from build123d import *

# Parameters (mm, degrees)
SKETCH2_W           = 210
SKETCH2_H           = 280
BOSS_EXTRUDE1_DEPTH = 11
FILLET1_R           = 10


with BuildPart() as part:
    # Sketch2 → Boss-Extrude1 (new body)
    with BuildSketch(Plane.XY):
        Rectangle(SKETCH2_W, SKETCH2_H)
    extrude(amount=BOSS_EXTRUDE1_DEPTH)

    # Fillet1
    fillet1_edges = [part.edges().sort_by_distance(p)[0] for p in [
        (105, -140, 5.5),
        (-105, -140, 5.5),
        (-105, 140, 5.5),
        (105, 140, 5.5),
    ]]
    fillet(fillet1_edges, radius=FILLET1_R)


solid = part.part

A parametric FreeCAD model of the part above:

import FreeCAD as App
import Part
import Sketcher
from FreeCAD import Vector
Q = App.Units.Quantity


def edges_at(feature, points):
    """Names of the edges that pass closest to the given points."""
    edges = feature.Shape.Edges
    near = lambda p: min(range(len(edges)), key=lambda i: edges[i].distToShape(Part.Vertex(*p))[0])
    return sorted({f"Edge{near(p) + 1}" for p in points})


def add_polygon(sketch, points):
    """Adds a closed chain of lines whose ends are joined by coincident constraints."""
    first, n = sketch.GeometryCount, len(points)
    for a, b in zip(points, points[1:] + points[:1]):
        sketch.addGeometry(Part.LineSegment(App.Vector(*a, 0), App.Vector(*b, 0)), False)
    for i in range(n):
        sketch.addConstraint(Sketcher.Constraint("Coincident", first + i, 2, first + (i + 1) % n, 1))

doc = App.newDocument("Part")
body = doc.addObject("PartDesign::Body", "Body")

sketch1 = body.newObject("Sketcher::SketchObject", "Sketch")
sketch1.AttachmentSupport = (doc.getObject("XY_Plane"), [""])
sketch1.MapMode = "FlatFace"
add_polygon(sketch1, [(-105, 140), (-105, -140), (105, -140), (105, 140)])
sketch1.addConstraint([
    Sketcher.Constraint("Vertical", 0),
    Sketcher.Constraint("Horizontal", 1),
    Sketcher.Constraint("Vertical", 2),
    Sketcher.Constraint("Horizontal", 3),
    Sketcher.Constraint("Symmetric", 0, 2, 2, 2, -1, 1),
    Sketcher.Constraint("DistanceX", 1, 1, 1, 2, Q("210 mm")),
    Sketcher.Constraint("DistanceY", 0, 2, 0, 1, Q("280 mm")),
])
pad1 = body.newObject("PartDesign::Pad", "Pad")
pad1.Profile = sketch1
pad1.Length = 11
doc.recompute()

fillet = body.newObject("PartDesign::Fillet", "Fillet")
fillet.Base = (pad1, edges_at(pad1, [
    (105, -140, 5.5),
    (-105, -140, 5.5),
    (-105, 140, 5.5),
    (105, 140, 5.5),
]))
fillet.Radius = 10

doc.recompute()
